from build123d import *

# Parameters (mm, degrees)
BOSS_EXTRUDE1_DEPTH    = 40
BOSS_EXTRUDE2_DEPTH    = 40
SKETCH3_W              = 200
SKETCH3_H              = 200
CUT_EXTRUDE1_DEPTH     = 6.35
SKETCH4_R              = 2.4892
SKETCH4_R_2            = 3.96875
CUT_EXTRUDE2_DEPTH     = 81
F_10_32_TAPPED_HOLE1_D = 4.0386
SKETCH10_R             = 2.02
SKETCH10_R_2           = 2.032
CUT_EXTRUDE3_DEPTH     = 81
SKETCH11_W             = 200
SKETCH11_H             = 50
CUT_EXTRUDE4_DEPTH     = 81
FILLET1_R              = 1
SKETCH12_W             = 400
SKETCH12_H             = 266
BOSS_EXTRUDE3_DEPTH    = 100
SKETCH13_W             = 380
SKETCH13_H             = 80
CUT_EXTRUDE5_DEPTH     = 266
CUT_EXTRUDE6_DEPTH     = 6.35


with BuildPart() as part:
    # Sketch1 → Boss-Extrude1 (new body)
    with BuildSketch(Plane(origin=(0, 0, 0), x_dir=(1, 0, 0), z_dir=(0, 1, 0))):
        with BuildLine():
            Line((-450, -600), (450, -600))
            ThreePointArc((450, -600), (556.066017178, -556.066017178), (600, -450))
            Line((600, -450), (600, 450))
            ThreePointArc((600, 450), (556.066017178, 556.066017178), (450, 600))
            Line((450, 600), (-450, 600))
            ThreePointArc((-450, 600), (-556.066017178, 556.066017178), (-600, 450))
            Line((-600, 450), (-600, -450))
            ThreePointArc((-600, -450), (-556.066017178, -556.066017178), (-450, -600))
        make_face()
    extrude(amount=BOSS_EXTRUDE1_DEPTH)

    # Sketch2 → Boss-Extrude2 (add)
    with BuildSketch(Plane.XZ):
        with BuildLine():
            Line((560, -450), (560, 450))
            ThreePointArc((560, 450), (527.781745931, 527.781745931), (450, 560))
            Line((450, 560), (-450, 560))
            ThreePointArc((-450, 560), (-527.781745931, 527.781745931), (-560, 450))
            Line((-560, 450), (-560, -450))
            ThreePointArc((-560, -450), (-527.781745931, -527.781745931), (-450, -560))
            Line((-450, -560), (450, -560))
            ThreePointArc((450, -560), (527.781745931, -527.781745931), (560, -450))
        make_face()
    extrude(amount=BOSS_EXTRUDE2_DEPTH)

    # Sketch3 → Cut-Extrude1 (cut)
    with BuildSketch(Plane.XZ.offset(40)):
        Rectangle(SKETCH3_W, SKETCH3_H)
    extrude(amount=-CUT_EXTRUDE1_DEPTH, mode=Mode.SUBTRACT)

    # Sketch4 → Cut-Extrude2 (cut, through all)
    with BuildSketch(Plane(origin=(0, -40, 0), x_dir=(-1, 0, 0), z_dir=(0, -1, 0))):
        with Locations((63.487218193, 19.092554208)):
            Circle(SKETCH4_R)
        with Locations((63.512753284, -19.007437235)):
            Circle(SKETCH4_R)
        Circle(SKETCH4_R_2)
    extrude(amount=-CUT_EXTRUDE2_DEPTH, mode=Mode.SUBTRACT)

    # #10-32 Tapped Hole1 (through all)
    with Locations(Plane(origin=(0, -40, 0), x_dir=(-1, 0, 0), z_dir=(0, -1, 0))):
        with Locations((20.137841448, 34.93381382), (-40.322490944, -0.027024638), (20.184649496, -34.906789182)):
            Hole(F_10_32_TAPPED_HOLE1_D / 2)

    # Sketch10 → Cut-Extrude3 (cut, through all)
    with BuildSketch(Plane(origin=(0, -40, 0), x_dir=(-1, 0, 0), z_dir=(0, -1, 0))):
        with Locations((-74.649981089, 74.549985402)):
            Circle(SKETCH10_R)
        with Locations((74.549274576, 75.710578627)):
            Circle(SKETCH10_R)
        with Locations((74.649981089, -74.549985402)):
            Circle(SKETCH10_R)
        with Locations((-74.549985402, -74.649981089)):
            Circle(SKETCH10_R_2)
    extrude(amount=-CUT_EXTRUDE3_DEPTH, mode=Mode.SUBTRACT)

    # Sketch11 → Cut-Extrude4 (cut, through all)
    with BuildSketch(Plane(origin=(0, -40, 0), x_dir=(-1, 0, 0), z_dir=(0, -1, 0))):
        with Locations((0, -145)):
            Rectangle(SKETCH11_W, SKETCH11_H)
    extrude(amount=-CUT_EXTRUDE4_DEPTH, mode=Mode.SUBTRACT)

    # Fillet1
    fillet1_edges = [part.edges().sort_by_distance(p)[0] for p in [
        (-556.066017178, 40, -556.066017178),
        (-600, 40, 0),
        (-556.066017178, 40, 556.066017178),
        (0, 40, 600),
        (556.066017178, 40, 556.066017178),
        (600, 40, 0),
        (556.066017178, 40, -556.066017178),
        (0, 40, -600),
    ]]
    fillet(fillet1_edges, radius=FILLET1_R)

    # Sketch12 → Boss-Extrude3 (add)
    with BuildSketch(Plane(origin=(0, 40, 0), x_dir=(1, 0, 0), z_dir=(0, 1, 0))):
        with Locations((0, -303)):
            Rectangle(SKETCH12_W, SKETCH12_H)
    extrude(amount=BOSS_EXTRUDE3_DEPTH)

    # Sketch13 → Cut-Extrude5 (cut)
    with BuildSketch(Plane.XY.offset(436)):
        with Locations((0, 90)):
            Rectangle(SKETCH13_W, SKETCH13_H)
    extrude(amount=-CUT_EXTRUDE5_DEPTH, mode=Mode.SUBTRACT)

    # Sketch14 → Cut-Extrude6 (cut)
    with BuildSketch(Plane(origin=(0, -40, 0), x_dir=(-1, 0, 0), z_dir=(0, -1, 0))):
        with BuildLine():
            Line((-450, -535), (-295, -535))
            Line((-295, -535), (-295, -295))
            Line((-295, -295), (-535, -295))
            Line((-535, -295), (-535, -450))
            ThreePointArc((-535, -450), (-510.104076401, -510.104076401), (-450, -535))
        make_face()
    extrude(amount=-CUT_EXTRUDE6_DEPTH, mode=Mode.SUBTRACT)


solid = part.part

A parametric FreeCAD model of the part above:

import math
import FreeCAD as App
import Part
import Sketcher

V = App.Vector
Q = App.Units.Quantity


def edges_at(feature, points):
    """Names of the edges that pass closest to the given points."""
    edges = feature.Shape.Edges
    near = lambda p: min(range(len(edges)), key=lambda i: edges[i].distToShape(Part.Vertex(*p))[0])
    return sorted({f"Edge{near(p) + 1}" for p in points})


def add_polygon(sketch, points):
    """Adds a closed chain of lines whose ends are joined by coincident constraints."""
    first, n = sketch.GeometryCount, len(points)
    for a, b in zip(points, points[1:] + points[:1]):
        sketch.addGeometry(Part.LineSegment(App.Vector(*a, 0), App.Vector(*b, 0)), False)
    for i in range(n):
        sketch.addConstraint(Sketcher.Constraint("Coincident", first + i, 2, first + (i + 1) % n, 1))

doc = App.newDocument("Part")
body = doc.addObject("PartDesign::Body", "Body")

# Sketch on XZ plane
sketch1 = body.newObject("Sketcher::SketchObject", "Sketch")
sketch1.AttachmentSupport = (doc.getObject("XZ_Plane"), [""])
sketch1.MapMode = "FlatFace"
sketch1.addGeometry([
    Part.LineSegment(V(-450, 600, 0), V(450, 600, 0)),  # 0
    Part.ArcOfCircle(Part.Circle(V(450, 450, 0), V(0, 0, 1), 150), math.radians(0), math.radians(90)),  # 1
    Part.LineSegment(V(600, 450, 0), V(600, -450, 0)),  # 2
    Part.ArcOfCircle(Part.Circle(V(450, -450, 0), V(0, 0, 1), 150), math.radians(-90), math.radians(0)),  # 3
    Part.LineSegment(V(450, -600, 0), V(-450, -600, 0)),  # 4
    Part.ArcOfCircle(Part.Circle(V(-450, -450, 0), V(0, 0, 1), 150), math.radians(180), math.radians(270)),  # 5
    Part.LineSegment(V(-600, -450, 0), V(-600, 450, 0)),  # 6
    Part.ArcOfCircle(Part.Circle(V(-450, 450, 0), V(0, 0, 1), 150), math.radians(90), math.radians(180)),  # 7
], False)
sketch1.addConstraint([
    Sketcher.Constraint("Tangent", 0, 2, 1, 2),
    Sketcher.Constraint("Tangent", 1, 1, 2, 1),
    Sketcher.Constraint("Tangent", 2, 2, 3, 2),
    Sketcher.Constraint("Tangent", 3, 1, 4, 1),
    Sketcher.Constraint("Tangent", 4, 2, 5, 2),
    Sketcher.Constraint("Tangent", 5, 1, 6, 1),
    Sketcher.Constraint("Tangent", 6, 2, 7, 2),
    Sketcher.Constraint("Tangent", 7, 1, 0, 1),
    Sketcher.Constraint("Horizontal", 0),
    Sketcher.Constraint("Vertical", 2),
    Sketcher.Constraint("Horizontal", 4),
    Sketcher.Constraint("Vertical", 6),
    Sketcher.Constraint("Equal", 1, 3),
    Sketcher.Constraint("Equal", 3, 5),
    Sketcher.Constraint("Equal", 5, 7),
    Sketcher.Constraint("Symmetric", 1, 3, 5, 3, -1, 1),
    Sketcher.Constraint("Equal", 4, 2),
    Sketcher.Constraint("Radius", 1, Q("150 mm")),
    Sketcher.Constraint("DistanceX", 0, 1, 0, 2, Q("900 mm")),
])
pad1 = body.newObject("PartDesign::Pad", "Pad")
pad1.Profile = sketch1
pad1.Length = 40
pad1.Reversed = True

# Sketch on XZ plane
sketch2 = body.newObject("Sketcher::SketchObject", "Sketch001")
sketch2.AttachmentSupport = (doc.getObject("XZ_Plane"), [""])
sketch2.MapMode = "FlatFace"
sketch2.addGeometry([
    Part.LineSegment(V(560, -450, 0), V(560, 450, 0)),  # 0
    Part.ArcOfCircle(Part.Circle(V(450, 450, 0), V(0, 0, 1), 110), math.radians(0), math.radians(90)),  # 1
    Part.LineSegment(V(450, 560, 0), V(-450, 560, 0)),  # 2
    Part.ArcOfCircle(Part.Circle(V(-450, 450, 0), V(0, 0, 1), 110), math.radians(90), math.radians(180)),  # 3
    Part.LineSegment(V(-560, 450, 0), V(-560, -450, 0)),  # 4
    Part.ArcOfCircle(Part.Circle(V(-450, -450, 0), V(0, 0, 1), 110), math.radians(180), math.radians(270)),  # 5
    Part.LineSegment(V(-450, -560, 0), V(450, -560, 0)),  # 6
    Part.ArcOfCircle(Part.Circle(V(450, -450, 0), V(0, 0, 1), 110), math.radians(-90), math.radians(0)),  # 7
], False)
sketch2.addConstraint([
    Sketcher.Constraint("Tangent", 0, 2, 1, 1),
    Sketcher.Constraint("Tangent", 1, 2, 2, 1),
    Sketcher.Constraint("Tangent", 2, 2, 3, 1),
    Sketcher.Constraint("Tangent", 3, 2, 4, 1),
    Sketcher.Constraint("Tangent", 4, 2, 5, 1),
    Sketcher.Constraint("Tangent", 5, 2, 6, 1),
    Sketcher.Constraint("Tangent", 6, 2, 7, 1),
    Sketcher.Constraint("Tangent", 7, 2, 0, 1),
    Sketcher.Constraint("Vertical", 0),
    Sketcher.Constraint("Horizontal", 2),
    Sketcher.Constraint("Vertical", 4),
    Sketcher.Constraint("Horizontal", 6),
    Sketcher.Constraint("Equal", 1, 3),
    Sketcher.Constraint("Equal", 3, 5),
    Sketcher.Constraint("Equal", 5, 7),
    Sketcher.Constraint("Symmetric", 1, 3, 5, 3, -1, 1),
    Sketcher.Constraint("Equal", 6, 0),
    Sketcher.Constraint("Radius", 1, Q("110 mm")),
    Sketcher.Constraint("DistanceX", 2, 2, 2, 1, Q("900 mm")),
])
pad2 = body.newObject("PartDesign::Pad", "Pad001")
pad2.Profile = sketch2
pad2.Length = 40

# Sketch on XZ plane
sketch3 = body.newObject("Sketcher::SketchObject", "Sketch002")
sketch3.AttachmentSupport = (doc.getObject("XZ_Plane"), [""])
sketch3.MapMode = "FlatFace"
sketch3.AttachmentOffset = App.Placement(V(0, 0, 40), App.Rotation())
add_polygon(sketch3, [(-100, 100), (-100, -100), (100, -100), (100, 100)])  # lines 0-3
sketch3.addConstraint([
    Sketcher.Constraint("Vertical", 0),
    Sketcher.Constraint("Horizontal", 1),
    Sketcher.Constraint("Vertical", 2),
    Sketcher.Constraint("Horizontal", 3),
    Sketcher.Constraint("Symmetric", 0, 2, 2, 2, -1, 1),
    Sketcher.Constraint("Equal", 3, 0),
    Sketcher.Constraint("DistanceX", 1, 1, 1, 2, Q("200 mm")),
])
pocket1 = body.newObject("PartDesign::Pocket", "Pocket")
pocket1.Profile = sketch3
pocket1.Length = 6.35

# Sketch on XZ plane
sketch4 = body.newObject("Sketcher::SketchObject", "Sketch003")
sketch4.AttachmentSupport = (doc.getObject("XZ_Plane"), [""])
sketch4.MapMode = "FlatFace"
sketch4.AttachmentOffset = App.Placement(V(0, 0, 40), App.Rotation())
sketch4.addGeometry([
    Part.Circle(V(-63.5, -19.1, 0), V(0, 0, 1), 2.5),
    Part.Circle(V(-63.5, 19, 0), V(0, 0, 1), 2.5),
    Part.Circle(V(0, 0, 0), V(0, 0, 1), 4),
], False)
sketch4.addConstraint([
    Sketcher.Constraint("Coincident", 2, 3, -1, 1),
    Sketcher.Constraint("Equal", 0, 1),
    Sketcher.Constraint("Diameter", 0, Q("4.9784 mm")),
    Sketcher.Constraint("Diameter", 2, Q("7.9375 mm")),
    Sketcher.Constraint("DistanceX", 0, 3, -1, 1, Q("63.487218 mm")),
    Sketcher.Constraint("DistanceY", 0, 3, 1, 3, Q("38.099991 mm")),
    Sketcher.Constraint("DistanceY", 0, 3, -1, 1, Q("19.092554 mm")),
    Sketcher.Constraint("DistanceX", 1, 3, -1, 1, Q("63.512753 mm")),
])
pocket2 = body.newObject("PartDesign::Pocket", "Pocket001")
pocket2.Profile = sketch4
pocket2.Type = "ThroughAll"

# Sketch on XZ plane
sketch5 = body.newObject("Sketcher::SketchObject", "Sketch004")
sketch5.AttachmentSupport = (doc.getObject("XZ_Plane"), [""])
sketch5.MapMode = "FlatFace"
sketch5.AttachmentOffset = App.Placement(V(0, 0, 40), App.Rotation())
sketch5.addGeometry([
    Part.Circle(V(-20.1, -34.9, 0), V(0, 0, 1), 2),
    Part.Circle(V(40.3, 0, 0), V(0, 0, 1), 2),
    Part.Circle(V(-20.2, 34.9, 0), V(0, 0, 1), 2),
], False)
sketch5.addConstraint([
    Sketcher.Constraint("Equal", 0, 1),
    Sketcher.Constraint("Equal", 1, 2),
    Sketcher.Constraint("Diameter", 0, Q("4.0386 mm")),
    Sketcher.Constraint("DistanceX", 0, 3, -1, 1, Q("20.137841 mm")),
    Sketcher.Constraint("DistanceX", -1, 1, 1, 3, Q("40.322491 mm")),
    Sketcher.Constraint("DistanceX", 2, 3, -1, 1, Q("20.184649 mm")),
    Sketcher.Constraint("DistanceY", -1, 1, 2, 3, Q("34.906789 mm")),
    Sketcher.Constraint("DistanceY", 0, 3, 1, 3, Q("34.960838 mm")),
    Sketcher.Constraint("DistanceY", 0, 3, -1, 1, Q("34.933814 mm")),
])
doc.recompute()
hole = body.newObject("PartDesign::Hole", "Hole")
hole.Profile = sketch5
hole.ThreadType = "None"
hole.Diameter = 4.0386
hole.DepthType = "ThroughAll"

# Sketch on XZ plane
sketch6 = body.newObject("Sketcher::SketchObject", "Sketch005")
sketch6.AttachmentSupport = (doc.getObject("XZ_Plane"), [""])
sketch6.MapMode = "FlatFace"
sketch6.AttachmentOffset = App.Placement(V(0, 0, 40), App.Rotation())
sketch6.addGeometry([
    Part.Circle(V(74.6, -74.5, 0), V(0, 0, 1), 2),
    Part.Circle(V(-74.5, -75.7, 0), V(0, 0, 1), 2),
    Part.Circle(V(-74.6, 74.5, 0), V(0, 0, 1), 2),
    Part.Circle(V(74.5, 74.6, 0), V(0, 0, 1), 2),
], False)
sketch6.addConstraint([
    Sketcher.Constraint("Equal", 0, 1),
    Sketcher.Constraint("Equal", 1, 2),
    Sketcher.Constraint("Symmetric", 0, 3, 2, 3, -1, 1),
    Sketcher.Constraint("Diameter", 0, Q("4.04 mm")),
    Sketcher.Constraint("Diameter", 3, Q("4.064 mm")),
    Sketcher.Constraint("DistanceX", -1, 1, 0, 3, Q("74.649981 mm")),
    Sketcher.Constraint("DistanceY", 1, 3, -1, 1, Q("75.710579 mm")),
    Sketcher.Constraint("DistanceY", -1, 1, 3, 3, Q("74.649981 mm")),
    Sketcher.Constraint("DistanceY", 0, 3, 2, 3, Q("149.099971 mm")),
    Sketcher.Constraint("DistanceX", 1, 3, 3, 3, Q("149.09926 mm")),
    Sketcher.Constraint("DistanceX", 1, 3, -1, 1, Q("74.549275 mm")),
])
pocket3 = body.newObject("PartDesign::Pocket", "Pocket002")
pocket3.Profile = sketch6
pocket3.Type = "ThroughAll"

# Sketch on XZ plane
sketch7 = body.newObject("Sketcher::SketchObject", "Sketch006")
sketch7.AttachmentSupport = (doc.getObject("XZ_Plane"), [""])
sketch7.MapMode = "FlatFace"
sketch7.AttachmentOffset = App.Placement(V(0, 0, 40), App.Rotation())
add_polygon(sketch7, [(100, 120), (100, 170), (-100, 170), (-100, 120)])  # lines 0-3
sketch7.addConstraint([
    Sketcher.Constraint("Vertical", 0),
    Sketcher.Constraint("Horizontal", 1),
    Sketcher.Constraint("Vertical", 2),
    Sketcher.Constraint("Horizontal", 3),
    Sketcher.Constraint("DistanceX", 1, 2, 1, 1, Q("200 mm")),
    Sketcher.Constraint("DistanceY", 0, 1, 0, 2, Q("50 mm")),
    Sketcher.Constraint("DistanceX", -1, 1, 0, 2, Q("100 mm")),
    Sketcher.Constraint("DistanceY", -1, 1, 0, 2, Q("170 mm")),
])
pocket4 = body.newObject("PartDesign::Pocket", "Pocket003")
pocket4.Profile = sketch7
pocket4.Type = "ThroughAll"
doc.recompute()

fillet = body.newObject("PartDesign::Fillet", "Fillet")
fillet.Base = (pocket4, edges_at(pocket4, [
    (-556.066, 40, -556.066),
    (-600, 40, 0),
    (-556.066, 40, 556.066),
    (0, 40, 600),
    (556.066, 40, 556.066),
    (600, 40, 0),
    (556.066, 40, -556.066),
    (0, 40, -600),
]))
fillet.Radius = 1

# Sketch on XZ plane
sketch8 = body.newObject("Sketcher::SketchObject", "Sketch007")
sketch8.AttachmentSupport = (doc.getObject("XZ_Plane"), [""])
sketch8.MapMode = "FlatFace"
sketch8.AttachmentOffset = App.Placement(V(0, 0, -40), App.Rotation())
add_polygon(sketch8, [(-200, 170), (-200, 436), (200, 436), (200, 170)])  # lines 0-3
sketch8.addConstraint([
    Sketcher.Constraint("Vertical", 0),
    Sketcher.Constraint("Horizontal", 1),
    Sketcher.Constraint("Vertical", 2),
    Sketcher.Constraint("Horizontal", 3),
    Sketcher.Constraint("DistanceX", 1, 1, 1, 2, Q("400 mm")),
    Sketcher.Constraint("DistanceY", 0, 1, 0, 2, Q("266 mm")),
    Sketcher.Constraint("DistanceX", 0, 2, -1, 1, Q("200 mm")),
    Sketcher.Constraint("DistanceY", -1, 1, 0, 2, Q("436 mm")),
])
pad3 = body.newObject("PartDesign::Pad", "Pad002")
pad3.Profile = sketch8
pad3.Length = 100
pad3.Reversed = True

# Sketch on XY plane
sketch9 = body.newObject("Sketcher::SketchObject", "Sketch008")
sketch9.AttachmentSupport = (doc.getObject("XY_Plane"), [""])
sketch9.MapMode = "FlatFace"
sketch9.AttachmentOffset = App.Placement(V(0, 0, 436), App.Rotation())
add_polygon(sketch9, [(-190, 130), (-190, 50), (190, 50), (190, 130)])  # lines 0-3
sketch9.addConstraint([
    Sketcher.Constraint("Vertical", 0),
    Sketcher.Constraint("Horizontal", 1),
    Sketcher.Constraint("Vertical", 2),
    Sketcher.Constraint("Horizontal", 3),
    Sketcher.Constraint("DistanceX", 1, 1, 1, 2, Q("380 mm")),
    Sketcher.Constraint("DistanceY", 0, 2, 0, 1, Q("80 mm")),
    Sketcher.Constraint("DistanceX", 0, 2, -1, 1, Q("190 mm")),
    Sketcher.Constraint("DistanceY", -1, 1, 0, 2, Q("50 mm")),
])
pocket5 = body.newObject("PartDesign::Pocket", "Pocket004")
pocket5.Profile = sketch9
pocket5.Length = 266

# Sketch on XZ plane
sketch10 = body.newObject("Sketcher::SketchObject", "Sketch009")
sketch10.AttachmentSupport = (doc.getObject("XZ_Plane"), [""])
sketch10.MapMode = "FlatFace"
sketch10.AttachmentOffset = App.Placement(V(0, 0, 40), App.Rotation())
sketch10.addGeometry([
    Part.LineSegment(V(450, 535, 0), V(295, 535, 0)),  # 0
    Part.LineSegment(V(295, 535, 0), V(295, 295, 0)),  # 1
    Part.LineSegment(V(295, 295, 0), V(535, 295, 0)),  # 2
    Part.LineSegment(V(535, 295, 0), V(535, 450, 0)),  # 3
    Part.ArcOfCircle(Part.Circle(V(450, 450, 0), V(0, 0, 1), 85), math.radians(0), math.radians(90)),  # 4
], False)
sketch10.addConstraint([
    Sketcher.Constraint("Coincident", 0, 2, 1, 1),
    Sketcher.Constraint("Coincident", 1, 2, 2, 1),
    Sketcher.Constraint("Coincident", 2, 2, 3, 1),
    Sketcher.Constraint("Tangent", 3, 2, 4, 1),
    Sketcher.Constraint("Tangent", 4, 2, 0, 1),
    Sketcher.Constraint("Horizontal", 0),
    Sketcher.Constraint("Vertical", 1),
    Sketcher.Constraint("Horizontal", 2),
    Sketcher.Constraint("Vertical", 3),
    Sketcher.Constraint("Equal", 2, 1),
    Sketcher.Constraint("Radius", 4, Q("85 mm")),
    Sketcher.Constraint("DistanceX", 0, 2, 0, 1, Q("155 mm")),
    Sketcher.Constraint("DistanceX", -1, 1, 4, 3, Q("450 mm")),
    Sketcher.Constraint("DistanceY", -1, 1, 4, 3, Q("450 mm")),
])
pocket6 = body.newObject("PartDesign::Pocket", "Pocket005")
pocket6.Profile = sketch10
pocket6.Length = 6.35

doc.recompute()
